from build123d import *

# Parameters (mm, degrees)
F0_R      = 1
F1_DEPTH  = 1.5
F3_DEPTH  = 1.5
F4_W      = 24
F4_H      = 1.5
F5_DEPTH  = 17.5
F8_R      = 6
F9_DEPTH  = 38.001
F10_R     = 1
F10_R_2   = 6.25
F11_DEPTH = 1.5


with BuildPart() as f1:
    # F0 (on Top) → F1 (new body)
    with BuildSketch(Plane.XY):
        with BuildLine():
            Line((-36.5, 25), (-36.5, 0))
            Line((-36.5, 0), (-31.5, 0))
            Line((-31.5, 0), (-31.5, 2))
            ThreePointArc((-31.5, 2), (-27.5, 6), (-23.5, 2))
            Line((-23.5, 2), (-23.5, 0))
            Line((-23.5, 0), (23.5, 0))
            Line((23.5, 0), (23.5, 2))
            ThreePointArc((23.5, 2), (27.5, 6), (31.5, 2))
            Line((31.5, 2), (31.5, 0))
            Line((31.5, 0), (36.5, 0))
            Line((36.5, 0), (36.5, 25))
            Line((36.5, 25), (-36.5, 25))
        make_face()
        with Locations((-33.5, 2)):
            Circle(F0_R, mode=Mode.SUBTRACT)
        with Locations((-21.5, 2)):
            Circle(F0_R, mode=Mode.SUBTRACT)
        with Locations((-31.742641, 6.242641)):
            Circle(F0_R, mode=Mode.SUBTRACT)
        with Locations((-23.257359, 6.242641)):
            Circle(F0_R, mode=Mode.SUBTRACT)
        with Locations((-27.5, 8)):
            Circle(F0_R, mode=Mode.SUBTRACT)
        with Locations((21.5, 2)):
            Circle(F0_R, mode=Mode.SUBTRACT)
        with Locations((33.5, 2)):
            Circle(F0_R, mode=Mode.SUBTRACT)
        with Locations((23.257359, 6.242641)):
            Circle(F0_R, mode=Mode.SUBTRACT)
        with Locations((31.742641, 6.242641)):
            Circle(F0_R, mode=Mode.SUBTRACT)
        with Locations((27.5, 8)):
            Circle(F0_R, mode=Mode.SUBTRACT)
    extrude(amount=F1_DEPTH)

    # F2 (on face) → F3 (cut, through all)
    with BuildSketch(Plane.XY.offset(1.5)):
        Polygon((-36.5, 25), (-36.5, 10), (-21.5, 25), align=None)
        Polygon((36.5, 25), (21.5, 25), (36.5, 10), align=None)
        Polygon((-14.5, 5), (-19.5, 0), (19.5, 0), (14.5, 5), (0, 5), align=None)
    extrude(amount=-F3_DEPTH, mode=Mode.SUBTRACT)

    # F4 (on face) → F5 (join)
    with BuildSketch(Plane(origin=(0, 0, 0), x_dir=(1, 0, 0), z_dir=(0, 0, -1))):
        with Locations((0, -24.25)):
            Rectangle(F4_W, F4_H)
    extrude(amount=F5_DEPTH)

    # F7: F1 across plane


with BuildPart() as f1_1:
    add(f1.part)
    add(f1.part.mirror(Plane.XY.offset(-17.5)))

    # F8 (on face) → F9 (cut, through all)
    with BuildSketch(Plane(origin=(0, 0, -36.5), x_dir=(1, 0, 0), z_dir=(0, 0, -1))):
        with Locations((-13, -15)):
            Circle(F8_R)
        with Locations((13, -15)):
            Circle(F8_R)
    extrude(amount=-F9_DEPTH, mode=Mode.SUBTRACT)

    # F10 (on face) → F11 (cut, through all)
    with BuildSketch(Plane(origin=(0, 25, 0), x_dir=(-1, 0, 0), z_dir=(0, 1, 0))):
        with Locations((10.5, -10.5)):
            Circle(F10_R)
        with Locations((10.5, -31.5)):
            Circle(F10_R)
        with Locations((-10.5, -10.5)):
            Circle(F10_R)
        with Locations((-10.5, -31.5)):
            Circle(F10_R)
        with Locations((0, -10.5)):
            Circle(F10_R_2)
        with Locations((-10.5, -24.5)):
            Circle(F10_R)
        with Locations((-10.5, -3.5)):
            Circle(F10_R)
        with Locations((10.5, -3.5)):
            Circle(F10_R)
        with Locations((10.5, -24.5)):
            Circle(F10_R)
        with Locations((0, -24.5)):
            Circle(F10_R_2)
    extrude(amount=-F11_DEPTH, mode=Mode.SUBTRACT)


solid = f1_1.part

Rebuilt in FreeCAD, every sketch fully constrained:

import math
import FreeCAD as App
import Part
import Sketcher
from FreeCAD import Vector
Q = App.Units.Quantity


def add_polygon(sketch, points):
    """Adds a closed chain of lines whose ends are joined by coincident constraints."""
    first, n = sketch.GeometryCount, len(points)
    for a, b in zip(points, points[1:] + points[:1]):
        sketch.addGeometry(Part.LineSegment(App.Vector(*a, 0), App.Vector(*b, 0)), False)
    for i in range(n):
        sketch.addConstraint(Sketcher.Constraint("Coincident", first + i, 2, first + (i + 1) % n, 1))

doc = App.newDocument("Part")
params = doc.addObject("Spreadsheet::Sheet", "Params")
for row, (alias, value) in enumerate([
    ("sketch1_diameter", "2 mm"),
    ("sketch1_radius", "4 mm"),
    ("sketch1_width", "5 mm"),
    ("sketch1_width2", "47 mm"),
    ("sketch1_height", "25 mm"),
    ("pad1_length", "1.5 mm"),
    ("sketch2_width", "15 mm"),
    ("sketch2_width2", "39 mm"),
    ("sketch2_width3", "29 mm"),
    ("sketch3_width", "24 mm"),
    ("sketch3_height", "1.5 mm"),
    ("pad2_length", "17.5 mm"),
    ("sketch4_diameter", "12 mm"),
    ("sketch5_diameter", "2 mm"),
    ("sketch5_diameter2", "12.5 mm"),
], start=1):
    params.set(f"A{row}", alias)
    params.set(f"B{row}", "=" + value)
    params.setAlias(f"B{row}", alias)

body = doc.addObject("PartDesign::Body", "Body")

sketch1 = body.newObject("Sketcher::SketchObject", "Sketch")
sketch1.AttachmentSupport = (doc.getObject("XY_Plane"), [""])
sketch1.MapMode = "FlatFace"
sketch1.addGeometry([
    Part.LineSegment(Vector(-36.5, 25, 0), Vector(-36.5, 0, 0)),
    Part.LineSegment(Vector(-36.5, 0, 0), Vector(-31.5, 0, 0)),
    Part.LineSegment(Vector(-31.5, 0, 0), Vector(-31.5, 2, 0)),
    Part.ArcOfCircle(Part.Circle(Vector(-27.5, 2, 0), Vector(0, 0, 1), 4), math.radians(0), math.radians(180)),
    Part.LineSegment(Vector(-23.5, 2, 0), Vector(-23.5, 0, 0)),
    Part.LineSegment(Vector(-23.5, 0, 0), Vector(23.5, 0, 0)),
    Part.LineSegment(Vector(23.5, 0, 0), Vector(23.5, 2, 0)),
    Part.ArcOfCircle(Part.Circle(Vector(27.5, 2, 0), Vector(0, 0, 1), 4), math.radians(0), math.radians(180)),
    Part.LineSegment(Vector(31.5, 2, 0), Vector(31.5, 0, 0)),
    Part.LineSegment(Vector(31.5, 0, 0), Vector(36.5, 0, 0)),
    Part.LineSegment(Vector(36.5, 0, 0), Vector(36.5, 25, 0)),
    Part.LineSegment(Vector(36.5, 25, 0), Vector(-36.5, 25, 0)),
    Part.Circle(Vector(-33.5, 2, 0), Vector(0, 0, 1), 1),
    Part.Circle(Vector(-21.5, 2, 0), Vector(0, 0, 1), 1),
    Part.Circle(Vector(21.5, 2, 0), Vector(0, 0, 1), 1),
    Part.Circle(Vector(33.5, 2, 0), Vector(0, 0, 1), 1),
    Part.Circle(Vector(-31.7, 6.2, 0), Vector(0, 0, 1), 1),
    Part.Circle(Vector(-23.3, 6.2, 0), Vector(0, 0, 1), 1),
    Part.Circle(Vector(-27.5, 8, 0), Vector(0, 0, 1), 1),
    Part.Circle(Vector(23.3, 6.2, 0), Vector(0, 0, 1), 1),
    Part.Circle(Vector(31.7, 6.2, 0), Vector(0, 0, 1), 1),
    Part.Circle(Vector(27.5, 8, 0), Vector(0, 0, 1), 1),
], False)
sketch1.addConstraint([
    Sketcher.Constraint("Coincident", 0, 2, 1, 1),
    Sketcher.Constraint("Coincident", 1, 2, 2, 1),
    Sketcher.Constraint("Tangent", 2, 2, 3, 2),
    Sketcher.Constraint("Tangent", 3, 1, 4, 1),
    Sketcher.Constraint("Coincident", 4, 2, 5, 1),
    Sketcher.Constraint("Coincident", 5, 2, 6, 1),
    Sketcher.Constraint("Tangent", 6, 2, 7, 2),
    Sketcher.Constraint("Tangent", 7, 1, 8, 1),
    Sketcher.Constraint("Coincident", 8, 2, 9, 1),
    Sketcher.Constraint("Coincident", 9, 2, 10, 1),
    Sketcher.Constraint("Coincident", 10, 2, 11, 1),
    Sketcher.Constraint("Coincident", 11, 2, 0, 1),
    Sketcher.Constraint("Vertical", 0),
    Sketcher.Constraint("Horizontal", 1),
    Sketcher.Constraint("Vertical", 2),
    Sketcher.Constraint("Vertical", 4),
    Sketcher.Constraint("Horizontal", 5),
    Sketcher.Constraint("Vertical", 6),
    Sketcher.Constraint("Vertical", 8),
    Sketcher.Constraint("Horizontal", 9),
    Sketcher.Constraint("Vertical", 10),
    Sketcher.Constraint("Horizontal", 11),
    Sketcher.Constraint("Equal", 3, 7),
    Sketcher.Constraint("Equal", 12, 13),
    Sketcher.Constraint("Equal", 13, 14),
    Sketcher.Constraint("Equal", 14, 15),
    Sketcher.Constraint("Equal", 15, 16),
    Sketcher.Constraint("Equal", 16, 17),
    Sketcher.Constraint("Equal", 17, 18),
    Sketcher.Constraint("Equal", 18, 19),
    Sketcher.Constraint("Equal", 19, 20),
    Sketcher.Constraint("Equal", 20, 21),
    Sketcher.Constraint("Symmetric", 4, 2, 5, 2, -1, 1),
    Sketcher.Constraint("Symmetric", 0, 2, 9, 2, -1, 1),
    Sketcher.Constraint("Symmetric", 13, 3, 14, 3, -2),
    Sketcher.Constraint("Symmetric", 12, 3, 15, 3, -2),
    Sketcher.Constraint("Symmetric", 17, 3, 19, 3, -2),
    Sketcher.Constraint("Symmetric", 16, 3, 20, 3, -2),
    Sketcher.Constraint("Symmetric", 18, 3, 21, 3, -2),
    Sketcher.Constraint("PointOnObject", 0, 2, -1),
    Sketcher.Constraint("Horizontal", 3, 3, 7, 3),
    Sketcher.Constraint("Horizontal", 7, 3, 12, 3),
    Sketcher.Constraint("Horizontal", 12, 3, 13, 3),
    Sketcher.Constraint("Horizontal", 16, 3, 17, 3),
    Sketcher.Constraint("Vertical", 3, 3, 18, 3),
    Sketcher.Constraint("Diameter", 12, Q("2 mm")),
    Sketcher.Constraint("Radius", 3, Q("4 mm")),
    Sketcher.Constraint("DistanceX", 1, 1, 1, 2, Q("5 mm")),
    Sketcher.Constraint("DistanceX", 5, 1, 5, 2, Q("47 mm")),
    Sketcher.Constraint("DistanceY", 0, 2, 0, 1, Q("25 mm")),
    Sketcher.Constraint("DistanceY", 2, 1, 2, 2, Q("2 mm")),
    Sketcher.Constraint("DistanceY", -1, 1, 18, 3, Q("8 mm")),
    Sketcher.Constraint("DistanceX", 12, 3, 3, 3, Q("6 mm")),
    Sketcher.Constraint("DistanceX", 3, 3, 13, 3, Q("6 mm")),
    Sketcher.Constraint("DistanceX", 16, 3, -1, 1, Q("31.742641 mm")),
    Sketcher.Constraint("DistanceY", -1, 1, 16, 3, Q("6.242641 mm")),
    Sketcher.Constraint("DistanceX", 17, 3, -1, 1, Q("23.257359 mm")),
])
sketch1.setExpression("Constraints[45]", "Params.sketch1_diameter")
sketch1.setExpression("Constraints[46]", "Params.sketch1_radius")
sketch1.setExpression("Constraints[47]", "Params.sketch1_width")
sketch1.setExpression("Constraints[48]", "Params.sketch1_width2")
sketch1.setExpression("Constraints[49]", "Params.sketch1_height")
pad1 = body.newObject("PartDesign::Pad", "Pad")
pad1.Profile = sketch1
pad1.setExpression("Length", "Params.pad1_length")

sketch2 = body.newObject("Sketcher::SketchObject", "Sketch001")
sketch2.AttachmentSupport = (doc.getObject("XY_Plane"), [""])
sketch2.MapMode = "FlatFace"
sketch2.AttachmentOffset = App.Placement(Vector(0, 0, 1.5), App.Rotation())
add_polygon(sketch2, [(-36, 25), (-36, 10), (-22, 25)])
add_polygon(sketch2, [(36, 25), (22, 25), (36, 10)])
add_polygon(sketch2, [(-14, 5), (-20, 0), (20, 0), (14, 5)])
sketch2.addConstraint([
    Sketcher.Constraint("Vertical", 0),
    Sketcher.Constraint("Horizontal", 2),
    Sketcher.Constraint("Horizontal", 3),
    Sketcher.Constraint("Vertical", 5),
    Sketcher.Constraint("Horizontal", 7),
    Sketcher.Constraint("Horizontal", 9),
    Sketcher.Constraint("Symmetric", 6, 2, 7, 2, -1, 1),
    Sketcher.Constraint("Symmetric", 1, 2, 3, 2, -2),
    Sketcher.Constraint("Symmetric", 0, 2, 4, 2, -2),
    Sketcher.Constraint("Perpendicular", 1, 4),
    Sketcher.Constraint("Perpendicular", 4, 6),
    Sketcher.Constraint("Perpendicular", 6, 8),
    Sketcher.Constraint("DistanceX", 2, 2, 2, 1, Q("15 mm")),
    Sketcher.Constraint("DistanceX", 7, 1, 7, 2, Q("39 mm")),
    Sketcher.Constraint("DistanceX", 9, 2, 9, 1, Q("29 mm")),
    Sketcher.Constraint("DistanceY", -1, 1, 0, 2, Q("10 mm")),
    Sketcher.Constraint("DistanceX", 1, 2, 3, 2, Q("43 mm")),
])
sketch2.setExpression("Constraints[22]", "Params.sketch2_width")
sketch2.setExpression("Constraints[23]", "Params.sketch2_width2")
sketch2.setExpression("Constraints[24]", "Params.sketch2_width3")
pocket1 = body.newObject("PartDesign::Pocket", "Pocket")
pocket1.Profile = sketch2
pocket1.Type = "ThroughAll"

sketch3 = body.newObject("Sketcher::SketchObject", "Sketch002")
sketch3.AttachmentSupport = (doc.getObject("XY_Plane"), [""])
sketch3.MapMode = "FlatFace"
add_polygon(sketch3, [(-12, 23.5), (-12, 25), (12, 25), (12, 23.5)])
sketch3.addConstraint([
    Sketcher.Constraint("Vertical", 0),
    Sketcher.Constraint("Horizontal", 1),
    Sketcher.Constraint("Vertical", 2),
    Sketcher.Constraint("Horizontal", 3),
    Sketcher.Constraint("DistanceX", 1, 1, 1, 2, Q("24 mm")),
    Sketcher.Constraint("DistanceY", 0, 1, 0, 2, Q("1.5 mm")),
    Sketcher.Constraint("DistanceX", 0, 2, -1, 1, Q("12 mm")),
    Sketcher.Constraint("DistanceY", -1, 1, 0, 2, Q("25 mm")),
])
sketch3.setExpression("Constraints[8]", "Params.sketch3_width")
sketch3.setExpression("Constraints[9]", "Params.sketch3_height")
pad2 = body.newObject("PartDesign::Pad", "Pad001")
pad2.Profile = sketch3
pad2.setExpression("Length", "Params.pad2_length")
pad2.Reversed = True
body2 = doc.addObject("PartDesign::Body", "Body001")
doc.recompute()

body2.BaseFeature = body
doc.recompute()

mirroring = doc.addObject("Part::Mirroring", "Mirroring")
mirroring.Source = body
mirroring.Base = Vector(0, 0, -17.5)
mirroring.Normal = Vector(0, 0, 1)
body3 = doc.addObject("PartDesign::Body", "Body002")
body3.BaseFeature = mirroring
boolean = body2.newObject("PartDesign::Boolean", "Boolean")
boolean.Type = "Fuse"
boolean.addObjects([body3])
doc.recompute()

sketch4 = body2.newObject("Sketcher::SketchObject", "Sketch003")
sketch4.AttachmentSupport = (doc.getObject("XY_Plane001"), [""])
sketch4.MapMode = "FlatFace"
sketch4.AttachmentOffset = App.Placement(Vector(0, 0, -36.5), App.Rotation())
sketch4.addGeometry([
    Part.Circle(Vector(-13, 15, 0), Vector(0, 0, 1), 6),
    Part.Circle(Vector(13, 15, 0), Vector(0, 0, 1), 6),
], False)
sketch4.addConstraint([
    Sketcher.Constraint("Equal", 0, 1),
    Sketcher.Constraint("Symmetric", 0, 3, 1, 3, -2),
    Sketcher.Constraint("Diameter", 0, Q("12 mm")),
    Sketcher.Constraint("DistanceX", 0, 3, -1, 1, Q("13 mm")),
    Sketcher.Constraint("DistanceY", -1, 1, 0, 3, Q("15 mm")),
])
sketch4.setExpression("Constraints[2]", "Params.sketch4_diameter")
pocket2 = body2.newObject("PartDesign::Pocket", "Pocket001")
pocket2.Profile = sketch4
pocket2.Type = "ThroughAll"
pocket2.Reversed = True

sketch5 = body2.newObject("Sketcher::SketchObject", "Sketch004")
sketch5.AttachmentSupport = (doc.getObject("XZ_Plane001"), [""])
sketch5.MapMode = "FlatFace"
sketch5.AttachmentOffset = App.Placement(Vector(0, 0, -25), App.Rotation())
sketch5.addGeometry([
    Part.Circle(Vector(-10.5, -10.5, 0), Vector(0, 0, 1), 1),
    Part.Circle(Vector(-10.5, -31.5, 0), Vector(0, 0, 1), 1),
    Part.Circle(Vector(10.5, -10.5, 0), Vector(0, 0, 1), 1),
    Part.Circle(Vector(10.5, -31.5, 0), Vector(0, 0, 1), 1),
    Part.Circle(Vector(0, -10.5, 0), Vector(0, 0, 1), 6.2),
    Part.Circle(Vector(10.5, -24.5, 0), Vector(0, 0, 1), 1),
    Part.Circle(Vector(10.5, -3.5, 0), Vector(0, 0, 1), 1),
    Part.Circle(Vector(-10.5, -3.5, 0), Vector(0, 0, 1), 1),
    Part.Circle(Vector(-10.5, -24.5, 0), Vector(0, 0, 1), 1),
    Part.Circle(Vector(0, -24.5, 0), Vector(0, 0, 1), 6.2),
], False)
sketch5.addConstraint([
    Sketcher.Constraint("Equal", 0, 1),
    Sketcher.Constraint("Equal", 1, 2),
    Sketcher.Constraint("Equal", 2, 3),
    Sketcher.Constraint("Equal", 3, 5),
    Sketcher.Constraint("Equal", 5, 6),
    Sketcher.Constraint("Equal", 6, 7),
    Sketcher.Constraint("Equal", 7, 8),
    Sketcher.Constraint("Equal", 4, 9),
    Sketcher.Constraint("Symmetric", 0, 3, 2, 3, -2),
    Sketcher.Constraint("Symmetric", 1, 3, 3, 3, -2),
    Sketcher.Constraint("Symmetric", 6, 3, 7, 3, -2),
    Sketcher.Constraint("Symmetric", 5, 3, 8, 3, -2),
    Sketcher.Constraint("PointOnObject", 4, 3, -2),
    Sketcher.Constraint("PointOnObject", 9, 3, -2),
    Sketcher.Constraint("Horizontal", 2, 3, 4, 3),
    Sketcher.Constraint("Horizontal", 8, 3, 9, 3),
    Sketcher.Constraint("Vertical", 0, 3, 1, 3),
    Sketcher.Constraint("Vertical", 3, 3, 5, 3),
    Sketcher.Constraint("Vertical", 5, 3, 6, 3),
    Sketcher.Constraint("Diameter", 0, Q("2 mm")),
    Sketcher.Constraint("Diameter", 4, Q("12.5 mm")),
    Sketcher.Constraint("DistanceY", 1, 3, 0, 3, Q("21 mm")),
    Sketcher.Constraint("DistanceX", 0, 3, 2, 3, Q("21 mm")),
    Sketcher.Constraint("DistanceY", 3, 3, 5, 3, Q("7 mm")),
    Sketcher.Constraint("DistanceY", 2, 3, 6, 3, Q("7 mm")),
    Sketcher.Constraint("DistanceY", 0, 3, -1, 1, Q("10.5 mm")),
])
sketch5.setExpression("Constraints[19]", "Params.sketch5_diameter")
sketch5.setExpression("Constraints[20]", "Params.sketch5_diameter2")
pocket3 = body2.newObject("PartDesign::Pocket", "Pocket002")
pocket3.Profile = sketch5
pocket3.Type = "ThroughAll"
pocket3.Reversed = True
mirroring.Visibility = False

doc.recompute()
